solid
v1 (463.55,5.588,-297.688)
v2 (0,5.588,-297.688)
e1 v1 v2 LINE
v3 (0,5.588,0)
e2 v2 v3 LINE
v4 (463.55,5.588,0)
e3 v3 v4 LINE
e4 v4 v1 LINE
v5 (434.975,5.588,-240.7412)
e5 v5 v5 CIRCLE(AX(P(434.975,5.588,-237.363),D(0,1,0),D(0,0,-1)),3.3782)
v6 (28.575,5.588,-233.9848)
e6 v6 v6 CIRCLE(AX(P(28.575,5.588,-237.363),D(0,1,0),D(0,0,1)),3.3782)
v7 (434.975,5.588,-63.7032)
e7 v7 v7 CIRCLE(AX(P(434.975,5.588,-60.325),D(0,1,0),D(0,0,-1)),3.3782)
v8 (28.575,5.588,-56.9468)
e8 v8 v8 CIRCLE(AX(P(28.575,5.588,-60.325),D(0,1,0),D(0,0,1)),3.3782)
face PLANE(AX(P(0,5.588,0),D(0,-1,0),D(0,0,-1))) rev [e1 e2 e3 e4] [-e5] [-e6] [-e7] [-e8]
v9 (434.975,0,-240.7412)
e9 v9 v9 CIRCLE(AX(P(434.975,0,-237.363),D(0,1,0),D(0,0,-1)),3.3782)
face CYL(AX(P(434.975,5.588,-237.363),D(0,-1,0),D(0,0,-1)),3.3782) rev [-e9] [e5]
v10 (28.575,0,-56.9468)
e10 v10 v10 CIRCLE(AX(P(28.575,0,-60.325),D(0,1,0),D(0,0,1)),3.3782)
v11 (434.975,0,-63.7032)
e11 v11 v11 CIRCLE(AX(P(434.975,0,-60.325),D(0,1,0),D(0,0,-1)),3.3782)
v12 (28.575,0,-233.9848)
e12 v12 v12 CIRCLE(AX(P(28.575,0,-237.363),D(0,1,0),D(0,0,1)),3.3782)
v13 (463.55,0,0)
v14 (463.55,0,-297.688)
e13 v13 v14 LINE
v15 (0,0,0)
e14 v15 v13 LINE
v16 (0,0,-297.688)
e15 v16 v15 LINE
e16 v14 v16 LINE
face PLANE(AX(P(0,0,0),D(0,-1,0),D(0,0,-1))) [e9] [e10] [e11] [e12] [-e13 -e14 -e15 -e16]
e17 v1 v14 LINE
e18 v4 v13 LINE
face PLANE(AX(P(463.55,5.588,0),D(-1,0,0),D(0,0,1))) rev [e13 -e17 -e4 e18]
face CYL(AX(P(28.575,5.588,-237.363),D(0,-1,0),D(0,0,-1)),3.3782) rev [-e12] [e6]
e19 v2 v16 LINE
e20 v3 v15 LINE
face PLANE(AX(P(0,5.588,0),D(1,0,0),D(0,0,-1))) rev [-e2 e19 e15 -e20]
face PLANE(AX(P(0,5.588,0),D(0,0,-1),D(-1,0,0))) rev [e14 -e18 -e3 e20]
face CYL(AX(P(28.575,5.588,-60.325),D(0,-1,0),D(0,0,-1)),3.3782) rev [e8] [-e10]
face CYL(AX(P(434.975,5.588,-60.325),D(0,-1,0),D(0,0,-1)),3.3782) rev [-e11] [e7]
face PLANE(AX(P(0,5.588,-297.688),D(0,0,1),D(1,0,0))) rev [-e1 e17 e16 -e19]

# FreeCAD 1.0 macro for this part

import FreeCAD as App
import Part
import Sketcher
Q = App.Units.Quantity

doc = App.newDocument("Part")
body = doc.addObject("PartDesign::Body", "Body")

sketch1 = body.newObject("Sketcher::SketchObject", "Sketch")
sketch1.AttachmentSupport = (doc.getObject("XZ_Plane"), [""])
sketch1.MapMode = "FlatFace"
sketch1.addGeometry([
    Part.LineSegment(App.Vector(0, -297.7, 0), App.Vector(0, 0, 0)),
    Part.LineSegment(App.Vector(0, 0, 0), App.Vector(463.6, 0, 0)),
    Part.LineSegment(App.Vector(463.6, 0, 0), App.Vector(463.6, -297.7, 0)),
    Part.LineSegment(App.Vector(463.6, -297.7, 0), App.Vector(0, -297.7, 0)),
    Part.Circle(App.Vector(28.6, -60.3, 0), App.Vector(0, 0, 1), 3.4),
    Part.Circle(App.Vector(435, -60.3, 0), App.Vector(0, 0, 1), 3.4),
    Part.Circle(App.Vector(28.6, -237.4, 0), App.Vector(0, 0, 1), 3.4),
    Part.Circle(App.Vector(435, -237.4, 0), App.Vector(0, 0, 1), 3.4),
], False)
sketch1.addConstraint([
    Sketcher.Constraint("Coincident", 0, 2, 1, 1),
    Sketcher.Constraint("Coincident", 1, 2, 2, 1),
    Sketcher.Constraint("Coincident", 2, 2, 3, 1),
    Sketcher.Constraint("Coincident", 3, 2, 0, 1),
    Sketcher.Constraint("Vertical", 0),
    Sketcher.Constraint("Horizontal", 1),
    Sketcher.Constraint("Vertical", 2),
    Sketcher.Constraint("Horizontal", 3),
    Sketcher.Constraint("Coincident", 0, 2, -1, 1),
    Sketcher.Constraint("Equal", 4, 5),
    Sketcher.Constraint("Equal", 5, 6),
    Sketcher.Constraint("Equal", 6, 7),
    Sketcher.Constraint("Horizontal", 4, 3, 5, 3),
    Sketcher.Constraint("Horizontal", 6, 3, 7, 3),
    Sketcher.Constraint("Vertical", 4, 3, 6, 3),
    Sketcher.Constraint("Vertical", 5, 3, 7, 3),
    Sketcher.Constraint("Diameter", 4, Q("0.266 in")),
    Sketcher.Constraint("DistanceX", 4, 3, 5, 3, Q("16 in")),
    Sketcher.Constraint("DistanceX", 1, 1, 1, 2, Q("18.25 in")),
    Sketcher.Constraint("DistanceY", 0, 1, 0, 2, Q("11.72 in")),
    Sketcher.Constraint("DistanceY", 6, 3, 4, 3, Q("6.97 in")),
    Sketcher.Constraint("DistanceX", -1, 1, 4, 3, Q("1.125 in")),
    Sketcher.Constraint("DistanceY", 4, 3, -1, 1, Q("2.375 in")),
])
pad1 = body.newObject("PartDesign::Pad", "Pad")
pad1.Profile = sketch1
pad1.Length = Q("0.22 in")
pad1.Reversed = True

doc.recompute()
